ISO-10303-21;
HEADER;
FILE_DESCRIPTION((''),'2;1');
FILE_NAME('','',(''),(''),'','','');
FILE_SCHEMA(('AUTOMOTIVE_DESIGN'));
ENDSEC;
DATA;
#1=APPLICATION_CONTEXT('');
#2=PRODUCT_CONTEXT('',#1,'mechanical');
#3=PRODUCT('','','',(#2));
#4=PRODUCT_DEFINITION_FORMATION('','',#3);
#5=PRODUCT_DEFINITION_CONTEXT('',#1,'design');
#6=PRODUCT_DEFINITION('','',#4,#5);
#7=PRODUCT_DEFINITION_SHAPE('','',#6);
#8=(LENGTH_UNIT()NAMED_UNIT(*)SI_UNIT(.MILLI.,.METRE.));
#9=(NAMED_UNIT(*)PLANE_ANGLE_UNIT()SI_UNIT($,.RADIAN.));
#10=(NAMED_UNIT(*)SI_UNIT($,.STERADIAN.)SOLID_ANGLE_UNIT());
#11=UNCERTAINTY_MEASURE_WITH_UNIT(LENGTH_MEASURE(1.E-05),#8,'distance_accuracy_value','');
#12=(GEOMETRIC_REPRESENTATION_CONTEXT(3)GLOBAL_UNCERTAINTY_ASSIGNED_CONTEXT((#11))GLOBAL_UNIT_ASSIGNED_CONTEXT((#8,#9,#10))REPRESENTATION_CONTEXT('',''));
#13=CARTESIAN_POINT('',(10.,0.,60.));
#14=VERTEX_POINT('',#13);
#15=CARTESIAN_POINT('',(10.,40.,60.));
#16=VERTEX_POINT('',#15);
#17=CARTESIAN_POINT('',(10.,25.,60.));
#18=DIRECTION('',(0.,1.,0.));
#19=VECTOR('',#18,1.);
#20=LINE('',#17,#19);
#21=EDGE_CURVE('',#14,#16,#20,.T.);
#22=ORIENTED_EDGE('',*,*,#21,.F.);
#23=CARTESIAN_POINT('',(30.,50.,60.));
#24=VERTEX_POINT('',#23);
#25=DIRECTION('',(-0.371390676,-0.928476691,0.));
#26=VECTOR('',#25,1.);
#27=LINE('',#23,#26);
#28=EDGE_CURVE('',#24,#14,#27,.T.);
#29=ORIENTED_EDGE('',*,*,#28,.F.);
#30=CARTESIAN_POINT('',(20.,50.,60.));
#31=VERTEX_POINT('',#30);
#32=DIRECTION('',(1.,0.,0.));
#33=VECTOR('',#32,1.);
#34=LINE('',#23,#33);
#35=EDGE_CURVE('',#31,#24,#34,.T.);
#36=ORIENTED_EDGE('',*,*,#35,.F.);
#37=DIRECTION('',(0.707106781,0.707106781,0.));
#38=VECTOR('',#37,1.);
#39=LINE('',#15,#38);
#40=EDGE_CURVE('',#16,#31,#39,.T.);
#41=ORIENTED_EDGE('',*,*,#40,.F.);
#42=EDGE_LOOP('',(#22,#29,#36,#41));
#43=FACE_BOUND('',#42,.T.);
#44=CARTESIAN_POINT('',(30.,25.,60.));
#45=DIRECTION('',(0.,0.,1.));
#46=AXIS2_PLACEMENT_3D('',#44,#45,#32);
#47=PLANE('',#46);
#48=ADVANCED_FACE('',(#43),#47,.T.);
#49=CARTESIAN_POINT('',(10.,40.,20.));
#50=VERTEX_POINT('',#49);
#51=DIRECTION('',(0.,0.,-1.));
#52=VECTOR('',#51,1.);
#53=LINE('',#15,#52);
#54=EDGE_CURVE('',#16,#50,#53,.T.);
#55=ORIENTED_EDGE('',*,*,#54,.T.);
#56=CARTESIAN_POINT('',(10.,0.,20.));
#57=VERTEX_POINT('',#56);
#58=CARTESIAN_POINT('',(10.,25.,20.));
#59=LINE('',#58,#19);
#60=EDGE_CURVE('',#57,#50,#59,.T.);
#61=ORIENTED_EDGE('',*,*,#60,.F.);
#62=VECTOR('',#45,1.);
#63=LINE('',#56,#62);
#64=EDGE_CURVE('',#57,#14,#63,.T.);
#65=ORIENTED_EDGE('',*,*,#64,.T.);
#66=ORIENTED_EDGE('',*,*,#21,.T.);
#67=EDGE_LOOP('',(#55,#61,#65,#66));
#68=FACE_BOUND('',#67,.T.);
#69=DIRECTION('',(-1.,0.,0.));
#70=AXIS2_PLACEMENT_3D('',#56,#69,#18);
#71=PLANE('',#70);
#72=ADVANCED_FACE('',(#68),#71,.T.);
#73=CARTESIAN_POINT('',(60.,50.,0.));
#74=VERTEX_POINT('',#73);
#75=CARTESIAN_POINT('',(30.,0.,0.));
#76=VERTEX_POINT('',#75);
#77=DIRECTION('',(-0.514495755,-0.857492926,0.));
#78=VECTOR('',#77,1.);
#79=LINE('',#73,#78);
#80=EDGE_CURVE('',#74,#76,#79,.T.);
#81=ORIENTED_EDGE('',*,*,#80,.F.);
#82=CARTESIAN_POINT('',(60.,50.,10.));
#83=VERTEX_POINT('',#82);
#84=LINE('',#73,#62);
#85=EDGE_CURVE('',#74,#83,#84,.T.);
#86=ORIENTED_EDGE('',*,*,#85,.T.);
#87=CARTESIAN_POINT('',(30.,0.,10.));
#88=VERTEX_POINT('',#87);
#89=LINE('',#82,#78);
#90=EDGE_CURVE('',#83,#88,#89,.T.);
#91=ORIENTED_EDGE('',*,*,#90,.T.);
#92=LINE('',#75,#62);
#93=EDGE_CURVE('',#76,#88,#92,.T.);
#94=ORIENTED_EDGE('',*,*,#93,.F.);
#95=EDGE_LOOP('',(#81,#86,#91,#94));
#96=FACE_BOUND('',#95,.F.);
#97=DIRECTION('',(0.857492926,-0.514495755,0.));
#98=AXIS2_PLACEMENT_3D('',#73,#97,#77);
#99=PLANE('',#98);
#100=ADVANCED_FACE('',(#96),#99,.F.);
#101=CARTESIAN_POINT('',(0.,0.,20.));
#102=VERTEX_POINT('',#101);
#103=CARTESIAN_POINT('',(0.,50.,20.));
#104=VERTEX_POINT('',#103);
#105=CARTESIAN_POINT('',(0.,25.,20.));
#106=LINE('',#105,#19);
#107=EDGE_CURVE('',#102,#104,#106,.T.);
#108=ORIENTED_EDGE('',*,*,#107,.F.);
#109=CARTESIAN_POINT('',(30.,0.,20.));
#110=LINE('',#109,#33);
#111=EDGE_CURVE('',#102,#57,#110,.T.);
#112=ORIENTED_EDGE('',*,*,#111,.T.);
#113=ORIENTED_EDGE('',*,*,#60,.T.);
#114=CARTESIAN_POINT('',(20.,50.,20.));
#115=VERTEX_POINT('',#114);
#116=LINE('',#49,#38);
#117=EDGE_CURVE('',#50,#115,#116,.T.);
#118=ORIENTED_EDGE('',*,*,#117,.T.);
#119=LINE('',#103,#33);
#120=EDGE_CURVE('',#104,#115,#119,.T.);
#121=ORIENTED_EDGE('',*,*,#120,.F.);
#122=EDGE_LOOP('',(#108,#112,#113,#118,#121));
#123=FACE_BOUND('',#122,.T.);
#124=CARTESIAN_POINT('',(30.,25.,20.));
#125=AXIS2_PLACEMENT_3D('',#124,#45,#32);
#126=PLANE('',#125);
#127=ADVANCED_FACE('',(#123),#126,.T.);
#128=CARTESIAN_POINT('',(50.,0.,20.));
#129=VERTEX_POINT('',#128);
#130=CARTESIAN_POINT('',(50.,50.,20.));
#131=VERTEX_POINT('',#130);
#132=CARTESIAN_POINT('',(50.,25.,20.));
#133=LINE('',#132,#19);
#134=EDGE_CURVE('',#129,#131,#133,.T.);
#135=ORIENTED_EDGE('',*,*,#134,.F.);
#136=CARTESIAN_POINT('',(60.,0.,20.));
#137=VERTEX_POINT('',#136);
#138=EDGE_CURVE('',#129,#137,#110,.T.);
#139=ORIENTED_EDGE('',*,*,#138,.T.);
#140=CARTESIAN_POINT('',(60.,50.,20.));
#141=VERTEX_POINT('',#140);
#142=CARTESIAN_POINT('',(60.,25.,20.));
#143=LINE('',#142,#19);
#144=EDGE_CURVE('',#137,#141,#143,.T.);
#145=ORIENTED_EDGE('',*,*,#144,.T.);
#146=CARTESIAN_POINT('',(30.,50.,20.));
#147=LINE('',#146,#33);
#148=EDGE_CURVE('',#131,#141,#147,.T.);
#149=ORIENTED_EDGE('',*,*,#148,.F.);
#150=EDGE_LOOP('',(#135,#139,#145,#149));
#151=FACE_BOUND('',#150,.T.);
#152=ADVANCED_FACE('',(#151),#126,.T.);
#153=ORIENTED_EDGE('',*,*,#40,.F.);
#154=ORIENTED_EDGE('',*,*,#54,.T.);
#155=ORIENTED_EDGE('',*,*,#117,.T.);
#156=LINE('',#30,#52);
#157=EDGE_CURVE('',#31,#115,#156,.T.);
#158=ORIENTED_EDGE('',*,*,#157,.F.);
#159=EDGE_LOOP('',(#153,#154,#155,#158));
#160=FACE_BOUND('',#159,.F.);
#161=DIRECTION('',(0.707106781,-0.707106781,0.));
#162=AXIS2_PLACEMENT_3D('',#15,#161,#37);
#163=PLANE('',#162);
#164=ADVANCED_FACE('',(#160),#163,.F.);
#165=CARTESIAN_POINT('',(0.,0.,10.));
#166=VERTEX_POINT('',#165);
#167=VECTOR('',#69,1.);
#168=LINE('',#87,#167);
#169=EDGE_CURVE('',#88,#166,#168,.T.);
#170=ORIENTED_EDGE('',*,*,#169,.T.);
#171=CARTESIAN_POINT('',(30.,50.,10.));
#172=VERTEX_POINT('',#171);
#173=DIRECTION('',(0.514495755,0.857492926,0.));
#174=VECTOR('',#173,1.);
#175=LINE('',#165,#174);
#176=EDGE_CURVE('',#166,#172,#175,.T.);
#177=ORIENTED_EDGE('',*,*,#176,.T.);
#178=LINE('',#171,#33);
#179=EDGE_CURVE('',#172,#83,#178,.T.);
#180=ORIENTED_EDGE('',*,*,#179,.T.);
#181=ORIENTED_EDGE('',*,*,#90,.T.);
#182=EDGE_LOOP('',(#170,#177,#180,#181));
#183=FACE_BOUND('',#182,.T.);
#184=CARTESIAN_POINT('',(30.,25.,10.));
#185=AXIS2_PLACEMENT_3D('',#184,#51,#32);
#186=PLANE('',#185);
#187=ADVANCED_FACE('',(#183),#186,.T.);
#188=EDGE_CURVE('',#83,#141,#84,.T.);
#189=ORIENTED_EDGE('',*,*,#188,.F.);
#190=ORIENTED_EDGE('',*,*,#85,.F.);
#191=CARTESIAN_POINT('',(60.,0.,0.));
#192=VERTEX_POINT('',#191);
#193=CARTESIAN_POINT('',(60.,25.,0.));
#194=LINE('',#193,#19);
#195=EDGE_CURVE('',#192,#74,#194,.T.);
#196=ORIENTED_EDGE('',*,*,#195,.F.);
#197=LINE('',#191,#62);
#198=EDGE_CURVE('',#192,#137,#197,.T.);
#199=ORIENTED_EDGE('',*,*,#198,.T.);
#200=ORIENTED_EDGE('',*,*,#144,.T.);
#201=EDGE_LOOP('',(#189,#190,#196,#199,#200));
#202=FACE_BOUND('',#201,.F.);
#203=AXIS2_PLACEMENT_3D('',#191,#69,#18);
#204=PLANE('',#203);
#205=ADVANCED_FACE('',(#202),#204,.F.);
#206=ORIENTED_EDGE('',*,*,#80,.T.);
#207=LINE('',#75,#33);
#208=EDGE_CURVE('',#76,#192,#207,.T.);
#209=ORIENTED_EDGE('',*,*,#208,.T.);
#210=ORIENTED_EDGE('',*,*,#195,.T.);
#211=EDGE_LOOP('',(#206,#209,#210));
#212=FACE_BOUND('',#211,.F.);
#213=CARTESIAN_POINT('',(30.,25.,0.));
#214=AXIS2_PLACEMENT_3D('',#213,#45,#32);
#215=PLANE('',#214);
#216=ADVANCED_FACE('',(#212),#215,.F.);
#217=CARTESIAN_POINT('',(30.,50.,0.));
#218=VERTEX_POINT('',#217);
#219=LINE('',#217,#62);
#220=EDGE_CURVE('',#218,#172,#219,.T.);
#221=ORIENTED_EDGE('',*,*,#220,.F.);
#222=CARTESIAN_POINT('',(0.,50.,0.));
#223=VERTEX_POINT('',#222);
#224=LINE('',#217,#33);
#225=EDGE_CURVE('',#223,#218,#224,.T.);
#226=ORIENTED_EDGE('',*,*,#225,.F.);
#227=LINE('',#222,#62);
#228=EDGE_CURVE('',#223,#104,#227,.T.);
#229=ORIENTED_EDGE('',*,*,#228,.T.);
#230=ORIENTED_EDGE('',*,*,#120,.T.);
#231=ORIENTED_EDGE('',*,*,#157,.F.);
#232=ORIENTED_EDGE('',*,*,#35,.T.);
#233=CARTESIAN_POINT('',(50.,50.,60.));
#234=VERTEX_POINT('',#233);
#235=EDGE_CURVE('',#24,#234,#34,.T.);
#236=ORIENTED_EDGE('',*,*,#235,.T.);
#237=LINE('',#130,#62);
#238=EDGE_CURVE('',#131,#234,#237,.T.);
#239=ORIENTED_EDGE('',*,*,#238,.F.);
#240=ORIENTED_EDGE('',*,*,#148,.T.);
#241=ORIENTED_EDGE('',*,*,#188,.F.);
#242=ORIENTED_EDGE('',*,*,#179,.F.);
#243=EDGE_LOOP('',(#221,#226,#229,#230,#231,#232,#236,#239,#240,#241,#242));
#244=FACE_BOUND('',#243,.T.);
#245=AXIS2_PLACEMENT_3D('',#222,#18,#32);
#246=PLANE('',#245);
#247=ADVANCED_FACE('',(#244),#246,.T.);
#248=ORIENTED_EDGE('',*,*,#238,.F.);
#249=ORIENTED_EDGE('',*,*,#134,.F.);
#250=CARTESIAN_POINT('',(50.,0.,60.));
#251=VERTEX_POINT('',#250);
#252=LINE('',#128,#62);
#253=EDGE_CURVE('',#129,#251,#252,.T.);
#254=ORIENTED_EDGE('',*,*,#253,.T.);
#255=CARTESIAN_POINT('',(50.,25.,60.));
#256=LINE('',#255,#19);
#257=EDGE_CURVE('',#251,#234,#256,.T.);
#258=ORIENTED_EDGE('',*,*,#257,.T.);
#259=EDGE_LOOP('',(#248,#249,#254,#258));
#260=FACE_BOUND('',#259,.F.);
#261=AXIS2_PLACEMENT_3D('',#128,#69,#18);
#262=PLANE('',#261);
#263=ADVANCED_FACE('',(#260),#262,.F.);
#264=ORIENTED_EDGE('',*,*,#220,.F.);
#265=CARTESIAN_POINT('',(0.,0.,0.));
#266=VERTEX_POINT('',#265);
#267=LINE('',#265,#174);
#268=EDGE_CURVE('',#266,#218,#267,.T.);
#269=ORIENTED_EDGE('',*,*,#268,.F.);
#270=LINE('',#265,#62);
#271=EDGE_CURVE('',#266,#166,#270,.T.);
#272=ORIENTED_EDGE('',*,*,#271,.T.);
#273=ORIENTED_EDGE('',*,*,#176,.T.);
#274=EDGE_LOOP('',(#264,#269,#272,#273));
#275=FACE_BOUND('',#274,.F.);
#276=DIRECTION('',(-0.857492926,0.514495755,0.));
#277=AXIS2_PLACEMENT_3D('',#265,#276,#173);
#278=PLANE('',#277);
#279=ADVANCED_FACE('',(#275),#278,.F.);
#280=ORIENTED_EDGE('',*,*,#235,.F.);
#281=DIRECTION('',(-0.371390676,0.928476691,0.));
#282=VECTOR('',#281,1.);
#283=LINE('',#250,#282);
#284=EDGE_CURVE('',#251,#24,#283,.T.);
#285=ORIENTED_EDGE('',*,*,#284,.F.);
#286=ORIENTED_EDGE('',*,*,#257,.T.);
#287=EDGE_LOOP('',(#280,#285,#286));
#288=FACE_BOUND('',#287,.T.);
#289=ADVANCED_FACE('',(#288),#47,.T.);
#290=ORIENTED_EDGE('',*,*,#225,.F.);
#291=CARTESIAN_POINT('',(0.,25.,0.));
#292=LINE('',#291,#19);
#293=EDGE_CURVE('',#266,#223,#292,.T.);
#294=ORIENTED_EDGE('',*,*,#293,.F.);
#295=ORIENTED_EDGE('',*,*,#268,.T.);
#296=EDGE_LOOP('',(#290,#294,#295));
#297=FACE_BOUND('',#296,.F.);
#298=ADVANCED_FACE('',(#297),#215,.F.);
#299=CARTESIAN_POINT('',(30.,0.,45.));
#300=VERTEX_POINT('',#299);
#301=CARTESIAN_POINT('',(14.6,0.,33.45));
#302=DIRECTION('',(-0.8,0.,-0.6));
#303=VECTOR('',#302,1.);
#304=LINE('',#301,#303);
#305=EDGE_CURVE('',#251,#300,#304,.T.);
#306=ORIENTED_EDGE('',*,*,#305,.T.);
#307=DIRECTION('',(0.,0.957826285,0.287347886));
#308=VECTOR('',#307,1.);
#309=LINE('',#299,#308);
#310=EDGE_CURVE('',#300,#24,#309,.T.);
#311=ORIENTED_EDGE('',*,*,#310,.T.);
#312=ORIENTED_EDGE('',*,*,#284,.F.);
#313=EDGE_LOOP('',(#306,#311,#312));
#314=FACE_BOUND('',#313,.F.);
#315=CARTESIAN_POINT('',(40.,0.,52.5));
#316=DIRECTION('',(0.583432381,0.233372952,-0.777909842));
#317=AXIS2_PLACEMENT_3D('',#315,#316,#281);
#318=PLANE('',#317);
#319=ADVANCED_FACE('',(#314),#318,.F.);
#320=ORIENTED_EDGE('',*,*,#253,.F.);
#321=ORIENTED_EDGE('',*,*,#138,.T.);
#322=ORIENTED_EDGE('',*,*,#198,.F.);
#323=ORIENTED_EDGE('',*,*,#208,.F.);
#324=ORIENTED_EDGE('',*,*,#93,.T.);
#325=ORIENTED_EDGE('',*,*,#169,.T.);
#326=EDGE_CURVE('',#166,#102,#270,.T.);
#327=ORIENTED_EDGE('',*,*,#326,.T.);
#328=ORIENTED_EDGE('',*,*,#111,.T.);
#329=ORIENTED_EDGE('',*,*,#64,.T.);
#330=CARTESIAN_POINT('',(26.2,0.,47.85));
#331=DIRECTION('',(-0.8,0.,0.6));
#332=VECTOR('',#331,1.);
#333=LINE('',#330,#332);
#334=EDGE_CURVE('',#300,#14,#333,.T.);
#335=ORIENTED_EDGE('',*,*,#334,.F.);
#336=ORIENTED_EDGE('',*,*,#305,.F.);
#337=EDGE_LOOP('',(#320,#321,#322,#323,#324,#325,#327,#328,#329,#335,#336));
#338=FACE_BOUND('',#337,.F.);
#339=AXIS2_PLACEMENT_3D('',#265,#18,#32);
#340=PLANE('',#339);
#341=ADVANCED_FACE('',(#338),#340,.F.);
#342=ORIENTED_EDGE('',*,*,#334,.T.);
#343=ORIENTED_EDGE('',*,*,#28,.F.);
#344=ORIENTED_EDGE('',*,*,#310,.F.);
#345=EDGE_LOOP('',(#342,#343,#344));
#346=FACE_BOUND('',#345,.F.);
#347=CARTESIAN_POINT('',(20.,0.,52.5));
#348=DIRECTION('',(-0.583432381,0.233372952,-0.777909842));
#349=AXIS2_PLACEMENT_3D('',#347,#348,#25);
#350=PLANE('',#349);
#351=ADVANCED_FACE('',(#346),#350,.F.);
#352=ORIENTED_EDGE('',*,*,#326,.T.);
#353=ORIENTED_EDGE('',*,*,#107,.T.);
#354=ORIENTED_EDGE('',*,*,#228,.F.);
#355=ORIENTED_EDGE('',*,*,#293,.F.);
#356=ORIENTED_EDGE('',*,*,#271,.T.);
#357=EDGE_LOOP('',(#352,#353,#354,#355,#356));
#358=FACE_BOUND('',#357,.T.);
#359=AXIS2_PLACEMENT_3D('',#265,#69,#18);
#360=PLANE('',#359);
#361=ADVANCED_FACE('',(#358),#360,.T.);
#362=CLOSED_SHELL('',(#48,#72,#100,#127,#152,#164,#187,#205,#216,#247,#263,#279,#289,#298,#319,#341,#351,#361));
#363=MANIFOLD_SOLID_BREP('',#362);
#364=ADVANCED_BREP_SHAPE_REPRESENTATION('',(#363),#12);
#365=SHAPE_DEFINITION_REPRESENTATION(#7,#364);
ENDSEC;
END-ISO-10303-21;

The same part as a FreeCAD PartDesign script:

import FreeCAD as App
import Part
import Sketcher


def add_polygon(sketch, points):
    """Adds a closed chain of lines whose ends are joined by coincident constraints."""
    first, n = sketch.GeometryCount, len(points)
    for a, b in zip(points, points[1:] + points[:1]):
        sketch.addGeometry(Part.LineSegment(App.Vector(*a, 0), App.Vector(*b, 0)), False)
    for i in range(n):
        sketch.addConstraint(Sketcher.Constraint("Coincident", first + i, 2, first + (i + 1) % n, 1))

doc = App.newDocument("Part")
body = doc.addObject("PartDesign::Body", "Body")

# Sketch on XY plane
sketch1 = body.newObject("Sketcher::SketchObject", "Sketch")
sketch1.AttachmentSupport = (doc.getObject("XY_Plane"), [""])
sketch1.MapMode = "FlatFace"
add_polygon(sketch1, [(0, 50), (0, 0), (60, 0), (60, 50)])  # lines 0-3
sketch1.addConstraint(Sketcher.Constraint("Vertical", 0))
sketch1.addConstraint(Sketcher.Constraint("Horizontal", 1))
sketch1.addConstraint(Sketcher.Constraint("Vertical", 2))
sketch1.addConstraint(Sketcher.Constraint("Horizontal", 3))
sketch1.addConstraint(Sketcher.Constraint("Coincident", 0, 2, -1, 1))
sketch1.addConstraint(Sketcher.Constraint("DistanceX", 1, 1, 1, 2, 60.0))
sketch1.addConstraint(Sketcher.Constraint("DistanceY", 0, 2, 0, 1, 50.0))
pad1 = body.newObject("PartDesign::Pad", "Pad")
pad1.Profile = sketch1
pad1.Length = 20

# Sketch on XY plane
sketch2 = body.newObject("Sketcher::SketchObject", "Sketch001")
sketch2.AttachmentSupport = (doc.getObject("XY_Plane"), [""])
sketch2.MapMode = "FlatFace"
sketch2.AttachmentOffset = App.Placement(App.Vector(0, 0, 20), App.Rotation())
add_polygon(sketch2, [(10, 50), (10, 0), (50, 0), (50, 50)])  # lines 0-3
sketch2.addConstraint(Sketcher.Constraint("Vertical", 0))
sketch2.addConstraint(Sketcher.Constraint("Horizontal", 1))
sketch2.addConstraint(Sketcher.Constraint("Vertical", 2))
sketch2.addConstraint(Sketcher.Constraint("Horizontal", 3))
sketch2.addConstraint(Sketcher.Constraint("PointOnObject", 0, 2, -1))
sketch2.addConstraint(Sketcher.Constraint("DistanceX", 1, 1, 1, 2, 40.0))
sketch2.addConstraint(Sketcher.Constraint("DistanceY", 0, 2, 0, 1, 50.0))
sketch2.addConstraint(Sketcher.Constraint("DistanceX", -1, 1, 0, 2, 10.0))
pad2 = body.newObject("PartDesign::Pad", "Pad001")
pad2.Profile = sketch2
pad2.Length = 40

# Sketch on XY plane
sketch3 = body.newObject("Sketcher::SketchObject", "Sketch002")
sketch3.AttachmentSupport = (doc.getObject("XY_Plane"), [""])
sketch3.MapMode = "FlatFace"
add_polygon(sketch3, [(30, 0), (0, 0), (30, 50), (60, 50)])  # lines 0-3
sketch3.addConstraint(Sketcher.Constraint("Horizontal", 0))
sketch3.addConstraint(Sketcher.Constraint("Horizontal", 2))
sketch3.addConstraint(Sketcher.Constraint("Coincident", 0, 2, -1, 1))
sketch3.addConstraint(Sketcher.Constraint("Parallel", 1, 3))
sketch3.addConstraint(Sketcher.Constraint("Vertical", 1, 2, 3, 2))
sketch3.addConstraint(Sketcher.Constraint("DistanceX", 0, 2, 0, 1, 30.0))
sketch3.addConstraint(Sketcher.Constraint("DistanceY", -1, 1, 1, 2, 50.0))
pocket1 = body.newObject("PartDesign::Pocket", "Pocket")
pocket1.Profile = sketch3
pocket1.Length = 10
pocket1.Reversed = True

# Sketch on XY plane
sketch4 = body.newObject("Sketcher::SketchObject", "Sketch003")
sketch4.AttachmentSupport = (doc.getObject("XY_Plane"), [""])
sketch4.MapMode = "FlatFace"
sketch4.AttachmentOffset = App.Placement(App.Vector(0, 0, 60), App.Rotation())
add_polygon(sketch4, [(20, 50), (10, 50), (10, 40)])  # lines 0-2
sketch4.addConstraint(Sketcher.Constraint("Horizontal", 0))
sketch4.addConstraint(Sketcher.Constraint("Vertical", 1))
sketch4.addConstraint(Sketcher.Constraint("Equal", 0, 1))
sketch4.addConstraint(Sketcher.Constraint("DistanceX", 0, 2, 0, 1, 10.0))
sketch4.addConstraint(Sketcher.Constraint("DistanceX", -1, 1, 0, 2, 10.0))
sketch4.addConstraint(Sketcher.Constraint("DistanceY", -1, 1, 0, 2, 50.0))
pocket2 = body.newObject("PartDesign::Pocket", "Pocket001")
pocket2.Profile = sketch4
pocket2.Length = 40

# Sketch on XY plane
sketch5 = body.newObject("Sketcher::SketchObject", "Sketch004")
sketch5.AttachmentSupport = (doc.getObject("XY_Plane"), [""])
sketch5.MapMode = "FlatFace"
sketch5.AttachmentOffset = App.Placement(App.Vector(0, 0, 60), App.Rotation())
add_polygon(sketch5, [(30, 50), (10, 0), (50, 0)])  # lines 0-2
sketch5.addConstraint(Sketcher.Constraint("Horizontal", 1))
sketch5.addConstraint(Sketcher.Constraint("PointOnObject", 0, 2, -1))
sketch5.addConstraint(Sketcher.Constraint("Equal", 0, 2))
sketch5.addConstraint(Sketcher.Constraint("DistanceX", 1, 1, 1, 2, 40.0))
sketch5.addConstraint(Sketcher.Constraint("DistanceX", -1, 1, 0, 2, 10.0))
sketch5.addConstraint(Sketcher.Constraint("DistanceY", -1, 1, 2, 2, 50.0))

# Sketch on an angled plane
sketch6 = body.newObject("Sketcher::SketchObject", "Sketch005")
sketch6.Placement = App.Placement(App.Vector(0, -12.385321, 41.284404), App.Rotation(App.Vector(0, 0.957826285, 0.287347886), App.Vector(1, 0, 0), App.Vector(0, 0.287347886, -0.957826285), "ZXY"))
sketch6.addGeometry(Part.LineSegment(App.Vector(13, 30, 0), App.Vector(65, 30, 0)), False)
sketch6.addConstraint(Sketcher.Constraint("Horizontal", 0))
sketch6.addConstraint(Sketcher.Constraint("DistanceY", -1, 1, 0, 1, 30.0))
sketch6.addConstraint(Sketcher.Constraint("DistanceX", 0, 1, 0, 2, 52.201533))
sketch6.addConstraint(Sketcher.Constraint("DistanceX", -1, 1, 0, 1, 12.930655))
doc.recompute()

subtractivepipe = body.newObject("PartDesign::SubtractivePipe", "SubtractivePipe")
subtractivepipe.Profile = sketch5
subtractivepipe.Spine = (sketch6, ["Edge1"])

doc.recompute()
